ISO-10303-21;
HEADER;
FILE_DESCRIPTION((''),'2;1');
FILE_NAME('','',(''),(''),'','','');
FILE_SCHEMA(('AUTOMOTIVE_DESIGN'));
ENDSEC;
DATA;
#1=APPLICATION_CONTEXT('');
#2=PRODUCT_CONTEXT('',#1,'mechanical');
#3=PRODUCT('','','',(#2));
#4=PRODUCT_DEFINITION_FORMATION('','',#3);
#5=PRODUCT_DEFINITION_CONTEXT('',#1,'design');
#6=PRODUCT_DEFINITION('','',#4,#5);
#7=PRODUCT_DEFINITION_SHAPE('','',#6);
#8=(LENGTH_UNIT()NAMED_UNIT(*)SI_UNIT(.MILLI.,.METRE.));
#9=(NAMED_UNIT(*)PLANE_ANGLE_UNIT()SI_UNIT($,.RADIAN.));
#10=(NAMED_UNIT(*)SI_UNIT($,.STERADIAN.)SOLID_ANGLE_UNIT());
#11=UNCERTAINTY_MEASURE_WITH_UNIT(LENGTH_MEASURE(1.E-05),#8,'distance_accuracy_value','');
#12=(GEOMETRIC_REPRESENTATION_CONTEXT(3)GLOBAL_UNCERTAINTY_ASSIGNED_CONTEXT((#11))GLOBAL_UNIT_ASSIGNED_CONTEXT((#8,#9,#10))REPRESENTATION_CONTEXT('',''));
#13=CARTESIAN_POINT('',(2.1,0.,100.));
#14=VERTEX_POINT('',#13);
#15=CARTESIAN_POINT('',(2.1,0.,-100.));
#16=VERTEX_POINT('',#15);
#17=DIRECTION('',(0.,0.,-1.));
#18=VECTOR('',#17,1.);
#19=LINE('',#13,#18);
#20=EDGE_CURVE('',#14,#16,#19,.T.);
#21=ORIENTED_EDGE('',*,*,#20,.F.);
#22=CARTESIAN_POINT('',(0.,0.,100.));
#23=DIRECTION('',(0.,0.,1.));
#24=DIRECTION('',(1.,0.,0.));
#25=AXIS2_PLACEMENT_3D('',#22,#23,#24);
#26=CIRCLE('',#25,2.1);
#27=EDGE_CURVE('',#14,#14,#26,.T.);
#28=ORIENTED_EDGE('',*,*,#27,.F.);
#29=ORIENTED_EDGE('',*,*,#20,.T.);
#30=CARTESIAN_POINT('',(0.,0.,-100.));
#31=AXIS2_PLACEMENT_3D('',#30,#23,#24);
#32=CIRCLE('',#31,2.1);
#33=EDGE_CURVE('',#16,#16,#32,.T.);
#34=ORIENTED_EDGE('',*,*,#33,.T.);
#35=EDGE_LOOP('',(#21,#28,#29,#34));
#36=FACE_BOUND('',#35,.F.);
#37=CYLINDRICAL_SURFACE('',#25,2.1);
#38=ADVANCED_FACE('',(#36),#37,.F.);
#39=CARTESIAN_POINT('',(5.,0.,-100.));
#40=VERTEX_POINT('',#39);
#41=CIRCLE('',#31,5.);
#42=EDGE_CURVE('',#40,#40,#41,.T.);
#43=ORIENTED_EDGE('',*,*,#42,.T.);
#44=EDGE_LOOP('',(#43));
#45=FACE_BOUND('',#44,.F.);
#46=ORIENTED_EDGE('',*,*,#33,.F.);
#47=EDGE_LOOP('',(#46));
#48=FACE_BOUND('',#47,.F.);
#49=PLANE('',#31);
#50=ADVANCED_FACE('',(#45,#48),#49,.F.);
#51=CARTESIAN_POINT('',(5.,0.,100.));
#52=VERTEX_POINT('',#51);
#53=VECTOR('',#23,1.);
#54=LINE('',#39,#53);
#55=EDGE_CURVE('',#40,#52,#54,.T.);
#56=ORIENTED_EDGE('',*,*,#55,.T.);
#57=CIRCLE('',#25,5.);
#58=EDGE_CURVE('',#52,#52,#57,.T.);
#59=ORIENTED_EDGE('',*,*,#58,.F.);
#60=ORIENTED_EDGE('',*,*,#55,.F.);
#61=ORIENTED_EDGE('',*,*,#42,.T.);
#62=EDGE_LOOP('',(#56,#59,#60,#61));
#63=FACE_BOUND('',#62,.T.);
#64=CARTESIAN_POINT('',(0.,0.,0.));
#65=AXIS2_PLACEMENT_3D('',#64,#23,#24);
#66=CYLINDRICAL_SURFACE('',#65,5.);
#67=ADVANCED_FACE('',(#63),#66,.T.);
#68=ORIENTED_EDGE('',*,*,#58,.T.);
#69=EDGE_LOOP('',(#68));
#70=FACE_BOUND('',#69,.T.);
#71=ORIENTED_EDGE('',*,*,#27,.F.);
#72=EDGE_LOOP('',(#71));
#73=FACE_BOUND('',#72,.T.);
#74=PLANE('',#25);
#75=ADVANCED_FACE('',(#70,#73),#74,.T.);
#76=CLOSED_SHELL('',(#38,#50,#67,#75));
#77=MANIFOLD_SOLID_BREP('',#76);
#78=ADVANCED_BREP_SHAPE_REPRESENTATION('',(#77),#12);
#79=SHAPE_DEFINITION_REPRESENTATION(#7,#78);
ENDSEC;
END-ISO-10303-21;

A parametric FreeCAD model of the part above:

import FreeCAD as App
import Part
import Sketcher
from FreeCAD import Vector
Q = App.Units.Quantity

doc = App.newDocument("Part")
body = doc.addObject("PartDesign::Body", "Body")

# Sketch on XY plane
sketch1 = body.newObject("Sketcher::SketchObject", "Sketch")
sketch1.AttachmentSupport = (doc.getObject("XY_Plane"), [""])
sketch1.MapMode = "FlatFace"
sketch1.addGeometry(Part.Circle(Vector(0, 0, 0), Vector(0, 0, 1), 5), False)
sketch1.addConstraint([
    Sketcher.Constraint("Coincident", 0, 3, -1, 1),
    Sketcher.Constraint("Diameter", 0, Q("10 mm")),
])
pad1 = body.newObject("PartDesign::Pad", "Pad")
pad1.Profile = sketch1
pad1.Length = 200
pad1.Midplane = True

# Sketch on XY plane
sketch2 = body.newObject("Sketcher::SketchObject", "Sketch001")
sketch2.AttachmentSupport = (doc.getObject("XY_Plane"), [""])
sketch2.MapMode = "FlatFace"
sketch2.AttachmentOffset = App.Placement(Vector(0, 0, 100), App.Rotation())
sketch2.addGeometry(Part.Circle(Vector(0, 0, 0), Vector(0, 0, 1), 2.1), False)
sketch2.addConstraint([
    Sketcher.Constraint("Coincident", 0, 3, -1, 1),
    Sketcher.Constraint("Diameter", 0, Q("4.2 mm")),
])
pocket1 = body.newObject("PartDesign::Pocket", "Pocket")
pocket1.Profile = sketch2
pocket1.Type = "ThroughAll"
doc.recompute()

mirrored = body.newObject("PartDesign::Mirrored", "Mirrored")
mirrored.Originals = [pocket1]
mirrored.MirrorPlane = (doc.getObject("XY_Plane"), [""])
body.Tip = mirrored

doc.recompute()
